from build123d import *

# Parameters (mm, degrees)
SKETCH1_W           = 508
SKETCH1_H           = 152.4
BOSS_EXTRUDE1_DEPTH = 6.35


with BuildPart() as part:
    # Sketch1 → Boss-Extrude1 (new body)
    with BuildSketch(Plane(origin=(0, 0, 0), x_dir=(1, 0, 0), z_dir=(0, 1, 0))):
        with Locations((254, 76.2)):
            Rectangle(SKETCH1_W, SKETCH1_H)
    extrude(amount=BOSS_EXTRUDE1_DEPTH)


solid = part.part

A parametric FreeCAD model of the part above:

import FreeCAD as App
import Part
import Sketcher
from FreeCAD import Vector
Q = App.Units.Quantity


def add_polygon(sketch, points):
    """Adds a closed chain of lines whose ends are joined by coincident constraints."""
    first, n = sketch.GeometryCount, len(points)
    for a, b in zip(points, points[1:] + points[:1]):
        sketch.addGeometry(Part.LineSegment(App.Vector(*a, 0), App.Vector(*b, 0)), False)
    for i in range(n):
        sketch.addConstraint(Sketcher.Constraint("Coincident", first + i, 2, first + (i + 1) % n, 1))

doc = App.newDocument("Part")
body = doc.addObject("PartDesign::Body", "Body")

# Sketch on XZ plane
sketch1 = body.newObject("Sketcher::SketchObject", "Sketch")
sketch1.AttachmentSupport = (doc.getObject("XZ_Plane"), [""])
sketch1.MapMode = "FlatFace"
add_polygon(sketch1, [(0, -152), (0, 0), (508, 0), (508, -152)])  # lines 0-3
sketch1.addConstraint([
    Sketcher.Constraint("Vertical", 0),
    Sketcher.Constraint("Horizontal", 1),
    Sketcher.Constraint("Vertical", 2),
    Sketcher.Constraint("Horizontal", 3),
    Sketcher.Constraint("Coincident", 0, 2, -1, 1),
    Sketcher.Constraint("DistanceX", 1, 1, 1, 2, Q("20 in")),
    Sketcher.Constraint("DistanceY", 0, 1, 0, 2, Q("6 in")),
])
pad1 = body.newObject("PartDesign::Pad", "Pad")
pad1.Profile = sketch1
pad1.Length = Q("0.25 in")
pad1.Reversed = True

doc.recompute()
